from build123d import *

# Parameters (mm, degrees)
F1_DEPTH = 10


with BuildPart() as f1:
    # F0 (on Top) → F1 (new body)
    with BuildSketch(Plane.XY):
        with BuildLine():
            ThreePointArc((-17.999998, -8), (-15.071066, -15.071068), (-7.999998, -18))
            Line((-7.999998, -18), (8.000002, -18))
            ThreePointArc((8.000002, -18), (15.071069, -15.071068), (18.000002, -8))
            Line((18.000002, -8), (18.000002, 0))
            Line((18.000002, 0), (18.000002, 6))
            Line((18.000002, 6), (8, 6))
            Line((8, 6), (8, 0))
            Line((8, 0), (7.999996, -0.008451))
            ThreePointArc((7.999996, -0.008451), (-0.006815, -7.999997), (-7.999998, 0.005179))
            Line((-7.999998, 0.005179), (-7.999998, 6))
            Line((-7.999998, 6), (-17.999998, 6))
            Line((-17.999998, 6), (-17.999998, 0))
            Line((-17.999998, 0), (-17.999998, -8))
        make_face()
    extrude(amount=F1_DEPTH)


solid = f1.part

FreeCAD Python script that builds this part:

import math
import FreeCAD as App
import Part
import Sketcher
from FreeCAD import Vector

doc = App.newDocument("Part")
body = doc.addObject("PartDesign::Body", "Body")

# Sketch on XY plane
sketch1 = body.newObject("Sketcher::SketchObject", "Sketch")
sketch1.AttachmentSupport = (doc.getObject("XY_Plane"), [""])
sketch1.MapMode = "FlatFace"
sketch1.addGeometry([
    Part.ArcOfCircle(Part.Circle(Vector(-8, -8, 0), Vector(0, 0, 1), 10), math.radians(180), math.radians(270)),  # 0
    Part.LineSegment(Vector(-8, -18, 0), Vector(8, -18, 0)),  # 1
    Part.ArcOfCircle(Part.Circle(Vector(8, -8, 0), Vector(0, 0, 1), 10), math.radians(-90), math.radians(0)),  # 2
    Part.LineSegment(Vector(18, -8, 0), Vector(18, 6, 0)),  # 3
    Part.LineSegment(Vector(18, 6, 0), Vector(8, 6, 0)),  # 4
    Part.LineSegment(Vector(8, 6, 0), Vector(8, 0, 0)),  # 5
    Part.LineSegment(Vector(8, 0, 0), Vector(8, -0.008, 0)),  # 6
    Part.ArcOfCircle(Part.Circle(Vector(0, 0, 0), Vector(0, 0, 1), 8), math.radians(180), math.radians(360)),  # 7
    Part.LineSegment(Vector(-8, 0.005, 0), Vector(-8, 6, 0)),  # 8
    Part.LineSegment(Vector(-8, 6, 0), Vector(-18, 6, 0)),  # 9
    Part.LineSegment(Vector(-18, 6, 0), Vector(-18, -8, 0)),  # 10
], False)
sketch1.addConstraint([
    Sketcher.Constraint("Tangent", 0, 2, 1, 1),
    Sketcher.Constraint("Tangent", 1, 2, 2, 1),
    Sketcher.Constraint("Tangent", 2, 2, 3, 1),
    Sketcher.Constraint("Coincident", 3, 2, 4, 1),
    Sketcher.Constraint("Coincident", 4, 2, 5, 1),
    Sketcher.Constraint("Coincident", 5, 2, 6, 1),
    Sketcher.Constraint("Coincident", 6, 2, 7, 2),
    Sketcher.Constraint("Coincident", 7, 1, 8, 1),
    Sketcher.Constraint("Coincident", 8, 2, 9, 1),
    Sketcher.Constraint("Coincident", 9, 2, 10, 1),
    Sketcher.Constraint("Tangent", 10, 2, 0, 1),
    Sketcher.Constraint("Horizontal", 1),
    Sketcher.Constraint("Vertical", 3),
    Sketcher.Constraint("Horizontal", 4),
    Sketcher.Constraint("Vertical", 5),
    Sketcher.Constraint("Vertical", 8),
    Sketcher.Constraint("Horizontal", 9),
    Sketcher.Constraint("Vertical", 10),
    Sketcher.Constraint("Coincident", 7, 3, -1, 1),
    Sketcher.Constraint("Equal", 0, 2),
    Sketcher.Constraint("Symmetric", 4, 2, 8, 2, -2),
    Sketcher.Constraint("PointOnObject", 5, 2, -1),
    Sketcher.Constraint("Vertical", 2, 3, 4, 2),
    Sketcher.Constraint("Vertical", 0, 2, 7, 1),
    Sketcher.Constraint("Radius", 0, 9.999999),
    Sketcher.Constraint("Radius", 7, 8.0),
    Sketcher.Constraint("DistanceY", 3, 1, 3, 2, 14.0),
    Sketcher.Constraint("DistanceY", 5, 2, 5, 1, 6.0),
    Sketcher.Constraint("DistanceY", 8, 1, 8, 2, 5.994821),
    Sketcher.Constraint("Distance", 6, 0.008451),
])
pad1 = body.newObject("PartDesign::Pad", "Pad")
pad1.Profile = sketch1
pad1.Length = 10

doc.recompute()
